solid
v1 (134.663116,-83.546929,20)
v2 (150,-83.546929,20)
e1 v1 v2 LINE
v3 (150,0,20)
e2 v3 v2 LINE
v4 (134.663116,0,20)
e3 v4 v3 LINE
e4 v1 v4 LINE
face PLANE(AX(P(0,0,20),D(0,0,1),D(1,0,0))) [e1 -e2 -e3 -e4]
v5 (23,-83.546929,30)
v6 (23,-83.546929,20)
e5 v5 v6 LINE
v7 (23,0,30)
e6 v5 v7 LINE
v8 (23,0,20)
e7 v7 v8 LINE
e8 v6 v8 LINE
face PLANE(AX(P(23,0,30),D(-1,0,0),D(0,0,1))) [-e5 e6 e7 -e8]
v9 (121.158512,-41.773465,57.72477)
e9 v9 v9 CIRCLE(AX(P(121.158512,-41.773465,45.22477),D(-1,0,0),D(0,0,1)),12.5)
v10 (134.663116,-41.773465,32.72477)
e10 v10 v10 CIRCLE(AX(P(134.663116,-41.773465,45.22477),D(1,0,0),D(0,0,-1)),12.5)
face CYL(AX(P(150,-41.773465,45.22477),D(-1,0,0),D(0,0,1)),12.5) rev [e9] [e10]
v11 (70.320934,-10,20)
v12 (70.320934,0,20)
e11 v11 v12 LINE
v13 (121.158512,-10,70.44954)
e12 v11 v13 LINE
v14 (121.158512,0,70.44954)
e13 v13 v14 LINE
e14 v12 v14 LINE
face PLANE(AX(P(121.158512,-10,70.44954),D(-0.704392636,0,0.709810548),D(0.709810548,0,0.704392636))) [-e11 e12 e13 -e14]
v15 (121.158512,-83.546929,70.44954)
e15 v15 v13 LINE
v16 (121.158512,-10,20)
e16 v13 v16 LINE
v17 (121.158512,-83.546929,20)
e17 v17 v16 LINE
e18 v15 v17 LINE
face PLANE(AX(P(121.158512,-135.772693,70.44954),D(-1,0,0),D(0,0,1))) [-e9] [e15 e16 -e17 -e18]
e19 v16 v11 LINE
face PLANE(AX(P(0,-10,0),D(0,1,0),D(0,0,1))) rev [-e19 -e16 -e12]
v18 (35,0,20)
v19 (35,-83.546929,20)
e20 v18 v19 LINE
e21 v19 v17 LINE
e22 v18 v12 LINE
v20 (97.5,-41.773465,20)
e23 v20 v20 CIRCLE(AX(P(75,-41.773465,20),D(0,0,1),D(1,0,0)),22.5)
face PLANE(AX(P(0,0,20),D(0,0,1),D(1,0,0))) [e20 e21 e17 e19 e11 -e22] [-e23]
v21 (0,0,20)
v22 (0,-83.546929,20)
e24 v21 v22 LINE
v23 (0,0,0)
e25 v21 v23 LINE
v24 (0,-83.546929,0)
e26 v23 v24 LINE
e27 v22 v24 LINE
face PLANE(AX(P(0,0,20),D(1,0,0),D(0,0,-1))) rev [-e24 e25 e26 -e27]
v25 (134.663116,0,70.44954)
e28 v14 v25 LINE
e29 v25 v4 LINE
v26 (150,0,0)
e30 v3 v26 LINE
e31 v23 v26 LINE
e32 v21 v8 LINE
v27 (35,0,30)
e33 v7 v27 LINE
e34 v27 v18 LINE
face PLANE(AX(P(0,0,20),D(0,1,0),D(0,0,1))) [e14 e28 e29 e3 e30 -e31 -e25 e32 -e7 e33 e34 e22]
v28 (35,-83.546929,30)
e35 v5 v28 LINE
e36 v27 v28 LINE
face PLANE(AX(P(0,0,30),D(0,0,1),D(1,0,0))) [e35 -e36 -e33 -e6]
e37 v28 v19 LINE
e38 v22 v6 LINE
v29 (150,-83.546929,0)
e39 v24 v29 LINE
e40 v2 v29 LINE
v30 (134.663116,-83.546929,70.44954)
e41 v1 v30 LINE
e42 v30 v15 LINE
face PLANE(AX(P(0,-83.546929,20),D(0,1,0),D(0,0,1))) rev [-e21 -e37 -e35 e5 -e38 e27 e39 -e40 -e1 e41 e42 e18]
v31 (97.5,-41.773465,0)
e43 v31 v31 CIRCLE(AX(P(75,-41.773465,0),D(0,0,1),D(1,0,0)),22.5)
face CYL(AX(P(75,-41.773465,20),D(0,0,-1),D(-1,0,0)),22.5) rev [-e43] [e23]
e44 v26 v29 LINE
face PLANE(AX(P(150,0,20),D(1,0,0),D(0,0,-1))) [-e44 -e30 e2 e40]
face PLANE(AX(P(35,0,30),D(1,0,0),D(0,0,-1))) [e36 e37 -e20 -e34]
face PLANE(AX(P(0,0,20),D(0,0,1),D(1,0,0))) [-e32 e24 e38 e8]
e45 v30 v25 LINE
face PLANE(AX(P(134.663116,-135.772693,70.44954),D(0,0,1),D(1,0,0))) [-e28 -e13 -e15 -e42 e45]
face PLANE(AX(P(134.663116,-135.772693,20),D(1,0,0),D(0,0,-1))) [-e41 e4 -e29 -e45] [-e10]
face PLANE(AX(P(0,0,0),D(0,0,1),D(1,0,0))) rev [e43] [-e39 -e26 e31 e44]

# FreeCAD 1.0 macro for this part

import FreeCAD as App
import Part
import Sketcher

V = App.Vector

doc = App.newDocument("Part")
body = doc.addObject("PartDesign::Body", "Body")

sketch1 = doc.addObject("Sketcher::SketchObject", "Sketch")
body.addObject(sketch1)
sketch1.AttachmentSupport = (doc.XY_Plane, [""])
sketch1.MapMode = "FlatFace"
sketch1.addGeometry([
    Part.LineSegment(V(0, 0, 0), V(0, -83.546929, 0)),
    Part.LineSegment(V(0, -83.546929, 0), V(23, -83.546929, 0)),
    Part.LineSegment(V(23, -83.546929, 0), V(23, 0, 0)),
    Part.LineSegment(V(23, 0, 0), V(0, 0, 0)),
], False)
sketch1.addConstraint([
    Sketcher.Constraint("Coincident", 0, 2, 1, 1),
    Sketcher.Constraint("Coincident", 1, 2, 2, 1),
    Sketcher.Constraint("Coincident", 2, 2, 3, 1),
    Sketcher.Constraint("Coincident", 3, 2, 0, 1),
    Sketcher.Constraint("Vertical", 0),
    Sketcher.Constraint("Horizontal", 1),
    Sketcher.Constraint("Vertical", 2),
    Sketcher.Constraint("Horizontal", 3),
    Sketcher.Constraint("Coincident", 3, 2, -1, 1),
    Sketcher.Constraint("DistanceX", 1, 1, 1, 2, 23.0),
    Sketcher.Constraint("DistanceY", 0, 2, 0, 1, 83.546929),
])
pad1 = doc.addObject("PartDesign::Pad", "Pad")
body.addObject(pad1)
pad1.Profile = sketch1
pad1.Length = 20
body2 = doc.addObject("PartDesign::Body", "Body001")

sketch2 = doc.addObject("Sketcher::SketchObject", "Sketch001")
body2.addObject(sketch2)
sketch2.AttachmentSupport = (doc.getObject("XY_Plane001"), [""])
sketch2.MapMode = "FlatFace"
sketch2.addGeometry([
    Part.LineSegment(V(35, 0, 0), V(35, -83.546929, 0)),
    Part.LineSegment(V(35, -83.546929, 0), V(150, -83.546929, 0)),
    Part.LineSegment(V(150, -83.546929, 0), V(150, 0, 0)),
    Part.LineSegment(V(150, 0, 0), V(35, 0, 0)),
    Part.Circle(V(75, -41.773465, 0), V(0, 0, 1), 22.5),
], False)
sketch2.addConstraint([
    Sketcher.Constraint("Coincident", 0, 2, 1, 1),
    Sketcher.Constraint("Coincident", 1, 2, 2, 1),
    Sketcher.Constraint("Coincident", 2, 2, 3, 1),
    Sketcher.Constraint("Coincident", 3, 2, 0, 1),
    Sketcher.Constraint("Vertical", 0),
    Sketcher.Constraint("Horizontal", 1),
    Sketcher.Constraint("Vertical", 2),
    Sketcher.Constraint("Horizontal", 3),
    Sketcher.Constraint("PointOnObject", 2, 2, -1),
    Sketcher.Constraint("Diameter", 4, 45.0),
    Sketcher.Constraint("DistanceX", 1, 1, 1, 2, 115.0),
    Sketcher.Constraint("DistanceX", -1, 1, 4, 3, 75.0),
    Sketcher.Constraint("DistanceX", -1, 1, 0, 2, 35.0),
    Sketcher.Constraint("DistanceY", 0, 2, 0, 1, 83.546929),
    Sketcher.Constraint("DistanceY", 4, 3, -1, 1, 41.773465),
])
pad2 = doc.addObject("PartDesign::Pad", "Pad001")
body2.addObject(pad2)
pad2.Profile = sketch2
pad2.Length = 20
body.AllowCompound = True
doc.recompute()

boolean = doc.addObject("PartDesign::Boolean", "Boolean")
body.addObject(boolean)
boolean.Type = "Fuse"
boolean.addObjects([body2])

sketch3 = doc.addObject("Sketcher::SketchObject", "Sketch002")
body.addObject(sketch3)
sketch3.AttachmentSupport = (doc.XY_Plane, [""])
sketch3.MapMode = "FlatFace"
sketch3.addGeometry([
    Part.LineSegment(V(23, 0, 0), V(23, -83.546929, 0)),
    Part.LineSegment(V(23, -83.546929, 0), V(35, -83.546929, 0)),
    Part.LineSegment(V(35, -83.546929, 0), V(35, 0, 0)),
    Part.LineSegment(V(35, 0, 0), V(23, 0, 0)),
], False)
sketch3.addConstraint([
    Sketcher.Constraint("Coincident", 0, 2, 1, 1),
    Sketcher.Constraint("Coincident", 1, 2, 2, 1),
    Sketcher.Constraint("Coincident", 2, 2, 3, 1),
    Sketcher.Constraint("Coincident", 3, 2, 0, 1),
    Sketcher.Constraint("Vertical", 0),
    Sketcher.Constraint("Horizontal", 1),
    Sketcher.Constraint("Vertical", 2),
    Sketcher.Constraint("Horizontal", 3),
    Sketcher.Constraint("PointOnObject", 2, 2, -1),
    Sketcher.Constraint("DistanceX", 1, 1, 1, 2, 12.0),
    Sketcher.Constraint("DistanceX", -1, 1, 0, 2, 23.0),
    Sketcher.Constraint("DistanceY", 0, 2, 0, 1, 83.546929),
])
pad3 = doc.addObject("PartDesign::Pad", "Pad002")
body.addObject(pad3)
pad3.Profile = sketch3
pad3.Length = 30

sketch4 = doc.addObject("Sketcher::SketchObject", "Sketch003")
body.addObject(sketch4)
sketch4.AttachmentSupport = (doc.XZ_Plane, [""])
sketch4.MapMode = "FlatFace"
sketch4.addGeometry([
    Part.LineSegment(V(121.158512, 20, 0), V(121.158512, 70.44954, 0)),
    Part.LineSegment(V(121.158512, 70.44954, 0), V(134.663116, 70.44954, 0)),
    Part.LineSegment(V(134.663116, 70.44954, 0), V(134.663116, 20, 0)),
    Part.LineSegment(V(134.663116, 20, 0), V(121.158512, 20, 0)),
], False)
sketch4.addConstraint([
    Sketcher.Constraint("Coincident", 0, 2, 1, 1),
    Sketcher.Constraint("Coincident", 1, 2, 2, 1),
    Sketcher.Constraint("Coincident", 2, 2, 3, 1),
    Sketcher.Constraint("Coincident", 3, 2, 0, 1),
    Sketcher.Constraint("Vertical", 0),
    Sketcher.Constraint("Horizontal", 1),
    Sketcher.Constraint("Vertical", 2),
    Sketcher.Constraint("Horizontal", 3),
    Sketcher.Constraint("DistanceY", -1, 1, 2, 2, 20.0),
    Sketcher.Constraint("DistanceY", 0, 1, 0, 2, 50.44954),
    Sketcher.Constraint("DistanceX", 1, 1, 1, 2, 13.504604),
    Sketcher.Constraint("DistanceX", -1, 1, 0, 2, 121.158512),
])
pad4 = doc.addObject("PartDesign::Pad", "Pad003")
body.addObject(pad4)
pad4.Profile = sketch4
pad4.Length = 83.546929

sketch5 = doc.addObject("Sketcher::SketchObject", "Sketch004")
body.addObject(sketch5)
sketch5.AttachmentSupport = (doc.YZ_Plane, [""])
sketch5.MapMode = "FlatFace"
sketch5.AttachmentOffset = App.Placement(V(0, 0, 121.158512), App.Rotation())
sketch5.addGeometry(Part.Circle(V(-41.773465, 45.22477, 0), V(0, 0, 1), 12.5), False)
sketch5.addConstraint([
    Sketcher.Constraint("Diameter", 0, 25.0),
    Sketcher.Constraint("DistanceY", -1, 1, 0, 3, 45.22477),
    Sketcher.Constraint("DistanceX", 0, 3, -1, 1, 41.773465),
])
pocket1 = doc.addObject("PartDesign::Pocket", "Pocket")
body.addObject(pocket1)
pocket1.Profile = sketch5
pocket1.Type = "ThroughAll"
pocket1.Reversed = True

sketch6 = doc.addObject("Sketcher::SketchObject", "Sketch005")
body.addObject(sketch6)
sketch6.AttachmentSupport = (doc.XZ_Plane, [""])
sketch6.MapMode = "FlatFace"
sketch6.addGeometry([
    Part.LineSegment(V(70.320934, 20, 0), V(121.158512, 70.44954, 0)),
    Part.LineSegment(V(121.158512, 70.44954, 0), V(121.158512, 20, 0)),
    Part.LineSegment(V(121.158512, 20, 0), V(70.320934, 20, 0)),
], False)
sketch6.addConstraint([
    Sketcher.Constraint("Coincident", 0, 2, 1, 1),
    Sketcher.Constraint("Coincident", 1, 2, 2, 1),
    Sketcher.Constraint("Coincident", 2, 2, 0, 1),
    Sketcher.Constraint("Vertical", 1),
    Sketcher.Constraint("Horizontal", 2),
    Sketcher.Constraint("DistanceY", -1, 1, 1, 2, 20.0),
    Sketcher.Constraint("DistanceY", 1, 2, 1, 1, 50.44954),
    Sketcher.Constraint("DistanceX", 2, 2, 2, 1, 50.837578),
    Sketcher.Constraint("DistanceX", -1, 1, 0, 2, 121.158512),
])
pad5 = doc.addObject("PartDesign::Pad", "Pad004")
body.addObject(pad5)
pad5.Profile = sketch6
pad5.Length = 10

doc.recompute()
